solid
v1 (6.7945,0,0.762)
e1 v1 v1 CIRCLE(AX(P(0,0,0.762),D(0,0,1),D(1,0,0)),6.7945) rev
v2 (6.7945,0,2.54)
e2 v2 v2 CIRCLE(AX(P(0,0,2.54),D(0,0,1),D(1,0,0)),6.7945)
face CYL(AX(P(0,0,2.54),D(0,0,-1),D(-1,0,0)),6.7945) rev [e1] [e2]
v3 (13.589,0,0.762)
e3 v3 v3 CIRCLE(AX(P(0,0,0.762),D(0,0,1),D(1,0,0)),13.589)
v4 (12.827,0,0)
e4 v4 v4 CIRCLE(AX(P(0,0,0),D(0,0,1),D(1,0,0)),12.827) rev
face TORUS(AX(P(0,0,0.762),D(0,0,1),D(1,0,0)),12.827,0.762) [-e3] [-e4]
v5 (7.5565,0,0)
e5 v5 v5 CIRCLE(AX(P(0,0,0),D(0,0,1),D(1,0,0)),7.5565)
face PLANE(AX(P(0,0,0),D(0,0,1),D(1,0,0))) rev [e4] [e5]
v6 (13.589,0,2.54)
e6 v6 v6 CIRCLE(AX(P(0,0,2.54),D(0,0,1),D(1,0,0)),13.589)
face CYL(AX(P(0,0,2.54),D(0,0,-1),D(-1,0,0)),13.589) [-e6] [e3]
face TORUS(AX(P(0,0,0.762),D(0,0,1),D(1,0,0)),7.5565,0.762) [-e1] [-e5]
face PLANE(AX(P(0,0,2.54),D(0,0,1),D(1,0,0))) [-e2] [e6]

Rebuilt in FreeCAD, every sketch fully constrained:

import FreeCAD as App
import Part
import Sketcher

V = App.Vector
Q = App.Units.Quantity


def edges_at(feature, points):
    """Names of the edges that pass closest to the given points."""
    edges = feature.Shape.Edges
    near = lambda p: min(range(len(edges)), key=lambda i: edges[i].distToShape(Part.Vertex(*p))[0])
    return sorted({f"Edge{near(p) + 1}" for p in points})

doc = App.newDocument("Part")
body = doc.addObject("PartDesign::Body", "Body")

sketch1 = body.newObject("Sketcher::SketchObject", "Sketch")
sketch1.AttachmentSupport = (doc.getObject("XY_Plane"), [""])
sketch1.MapMode = "FlatFace"
sketch1.addGeometry([
    Part.Circle(V(0, 0, 0), V(0, 0, 1), 13.589),
    Part.Circle(V(0, 0, 0), V(0, 0, 1), 6.7945),
], False)
sketch1.addConstraint([
    Sketcher.Constraint("Coincident", 0, 3, -1, 1),
    Sketcher.Constraint("Coincident", 1, 3, -1, 1),
    Sketcher.Constraint("Diameter", 0, Q("1.07 in")),
    Sketcher.Constraint("Diameter", 1, Q("0.535 in")),
])
pad1 = body.newObject("PartDesign::Pad", "Pad")
pad1.Profile = sketch1
pad1.Length = Q("0.1 in")
doc.recompute()

fillet = body.newObject("PartDesign::Fillet", "Fillet")
fillet.Base = (pad1, edges_at(pad1, [(-13.589, 0, 0), (-6.795, 0, 0)]))
fillet.Radius = Q("0.03 in")

doc.recompute()
